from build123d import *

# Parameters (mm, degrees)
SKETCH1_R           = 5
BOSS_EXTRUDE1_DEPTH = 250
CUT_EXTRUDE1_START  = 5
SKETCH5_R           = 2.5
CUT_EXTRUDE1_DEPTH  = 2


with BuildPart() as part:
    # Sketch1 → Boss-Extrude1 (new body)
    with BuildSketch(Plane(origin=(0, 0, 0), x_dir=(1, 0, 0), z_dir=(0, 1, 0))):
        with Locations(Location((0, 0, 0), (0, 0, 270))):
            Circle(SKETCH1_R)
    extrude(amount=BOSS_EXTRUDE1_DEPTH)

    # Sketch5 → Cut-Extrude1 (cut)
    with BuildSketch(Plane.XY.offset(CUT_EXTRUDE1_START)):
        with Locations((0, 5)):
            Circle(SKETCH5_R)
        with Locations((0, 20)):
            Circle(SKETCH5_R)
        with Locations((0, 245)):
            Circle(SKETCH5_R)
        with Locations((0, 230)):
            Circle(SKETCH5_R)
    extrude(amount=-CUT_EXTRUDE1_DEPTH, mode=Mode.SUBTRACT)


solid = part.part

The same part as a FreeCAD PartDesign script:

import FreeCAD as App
import Part
import Sketcher
from FreeCAD import Vector

doc = App.newDocument("Part")
body = doc.addObject("PartDesign::Body", "Body")

sketch1 = body.newObject("Sketcher::SketchObject", "Sketch")
sketch1.AttachmentSupport = (doc.getObject("XZ_Plane"), [""])
sketch1.MapMode = "FlatFace"
sketch1.addGeometry(Part.Circle(Vector(0, 0, 0), Vector(0, 0, 1), 5), False)
sketch1.addConstraint([
    Sketcher.Constraint("Coincident", 0, 3, -1, 1),
    Sketcher.Constraint("Diameter", 0, 10.0),
])
pad1 = body.newObject("PartDesign::Pad", "Pad")
pad1.Profile = sketch1
pad1.Length = 250
pad1.Reversed = True

sketch2 = body.newObject("Sketcher::SketchObject", "Sketch001")
sketch2.AttachmentSupport = (doc.getObject("XY_Plane"), [""])
sketch2.MapMode = "FlatFace"
sketch2.AttachmentOffset = App.Placement(Vector(0, 0, 5), App.Rotation())
sketch2.addGeometry([
    Part.Circle(Vector(0, 5, 0), Vector(0, 0, 1), 2.5),
    Part.Circle(Vector(0, 20, 0), Vector(0, 0, 1), 2.5),
    Part.Circle(Vector(0, 245, 0), Vector(0, 0, 1), 2.5),
    Part.Circle(Vector(0, 230, 0), Vector(0, 0, 1), 2.5),
], False)
sketch2.addConstraint([
    Sketcher.Constraint("Equal", 0, 1),
    Sketcher.Constraint("Equal", 1, 2),
    Sketcher.Constraint("Equal", 2, 3),
    Sketcher.Constraint("PointOnObject", 0, 3, -2),
    Sketcher.Constraint("PointOnObject", 1, 3, -2),
    Sketcher.Constraint("PointOnObject", 2, 3, -2),
    Sketcher.Constraint("PointOnObject", 3, 3, -2),
    Sketcher.Constraint("Diameter", 0, 5.0),
    Sketcher.Constraint("DistanceY", -1, 1, 0, 3, 5.0),
    Sketcher.Constraint("DistanceY", -1, 1, 1, 3, 20.0),
    Sketcher.Constraint("DistanceY", -1, 1, 2, 3, 245.0),
    Sketcher.Constraint("DistanceY", -1, 1, 3, 3, 230.0),
])
pocket1 = body.newObject("PartDesign::Pocket", "Pocket")
pocket1.Profile = sketch2
pocket1.Length = 2

doc.recompute()
